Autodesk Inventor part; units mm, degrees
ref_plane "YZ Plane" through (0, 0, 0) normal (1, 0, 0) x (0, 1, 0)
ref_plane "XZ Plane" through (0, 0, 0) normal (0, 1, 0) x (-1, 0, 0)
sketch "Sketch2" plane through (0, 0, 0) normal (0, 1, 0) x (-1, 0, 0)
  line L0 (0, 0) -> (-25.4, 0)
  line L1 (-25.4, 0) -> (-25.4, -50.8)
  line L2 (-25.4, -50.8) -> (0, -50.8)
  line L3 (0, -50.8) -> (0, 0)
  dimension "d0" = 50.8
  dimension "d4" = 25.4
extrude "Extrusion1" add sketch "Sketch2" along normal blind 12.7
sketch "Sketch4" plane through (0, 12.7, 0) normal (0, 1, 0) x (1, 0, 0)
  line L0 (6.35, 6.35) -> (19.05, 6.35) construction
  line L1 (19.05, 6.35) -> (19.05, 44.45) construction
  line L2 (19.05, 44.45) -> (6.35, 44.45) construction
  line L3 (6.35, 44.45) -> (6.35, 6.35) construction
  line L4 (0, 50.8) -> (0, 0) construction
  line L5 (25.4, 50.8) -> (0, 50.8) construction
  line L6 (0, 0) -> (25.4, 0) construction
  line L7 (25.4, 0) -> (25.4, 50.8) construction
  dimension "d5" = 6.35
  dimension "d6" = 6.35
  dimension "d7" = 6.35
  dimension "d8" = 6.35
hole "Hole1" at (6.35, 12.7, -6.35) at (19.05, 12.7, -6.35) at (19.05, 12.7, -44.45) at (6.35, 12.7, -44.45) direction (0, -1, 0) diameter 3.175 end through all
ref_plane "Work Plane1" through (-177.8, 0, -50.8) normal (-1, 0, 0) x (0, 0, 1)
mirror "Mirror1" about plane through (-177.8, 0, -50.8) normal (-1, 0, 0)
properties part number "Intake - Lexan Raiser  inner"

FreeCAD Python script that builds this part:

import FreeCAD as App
import Part
import Sketcher

V = App.Vector
Q = App.Units.Quantity


def add_polygon(sketch, points):
    """Adds a closed chain of lines whose ends are joined by coincident constraints."""
    first, n = sketch.GeometryCount, len(points)
    for a, b in zip(points, points[1:] + points[:1]):
        sketch.addGeometry(Part.LineSegment(App.Vector(*a, 0), App.Vector(*b, 0)), False)
    for i in range(n):
        sketch.addConstraint(Sketcher.Constraint("Coincident", first + i, 2, first + (i + 1) % n, 1))

doc = App.newDocument("Part")
params = doc.addObject("Spreadsheet::Sheet", "Params")
for row, (alias, value) in enumerate([
    ("sketch1_width", "1 in"),
    ("sketch1_height", "2 in"),
    ("pad1_length", "0.5 in"),
    ("sketch2_diameter", "0.125 in"),
    ("hole_diameter", "0.125 in"),
], start=1):
    params.set(f"A{row}", alias)
    params.set(f"B{row}", "=" + value)
    params.setAlias(f"B{row}", alias)

body = doc.addObject("PartDesign::Body", "Body")
body.AllowCompound = True

# Sketch on XZ plane
sketch1 = doc.addObject("Sketcher::SketchObject", "Sketch")
body.addObject(sketch1)
sketch1.AttachmentSupport = (doc.XZ_Plane, [""])
sketch1.MapMode = "FlatFace"
add_polygon(sketch1, [(0, -51), (0, 0), (25, 0), (25, -51)])  # lines 0-3
sketch1.addConstraint([
    Sketcher.Constraint("Vertical", 0),
    Sketcher.Constraint("Horizontal", 1),
    Sketcher.Constraint("Vertical", 2),
    Sketcher.Constraint("Horizontal", 3),
    Sketcher.Constraint("Coincident", 0, 2, -1, 1),
    Sketcher.Constraint("DistanceX", 1, 1, 1, 2, Q("1 in")),
    Sketcher.Constraint("DistanceY", 0, 1, 0, 2, Q("2 in")),
])
sketch1.setExpression("Constraints[9]", "Params.sketch1_width")
sketch1.setExpression("Constraints[10]", "Params.sketch1_height")
pad1 = doc.addObject("PartDesign::Pad", "Pad")
body.addObject(pad1)
pad1.Profile = sketch1
pad1.setExpression("Length", "Params.pad1_length")
pad1.Reversed = True

# Sketch on XZ plane
sketch2 = doc.addObject("Sketcher::SketchObject", "Sketch001")
body.addObject(sketch2)
sketch2.AttachmentSupport = (doc.XZ_Plane, [""])
sketch2.MapMode = "FlatFace"
sketch2.AttachmentOffset = App.Placement(V(0, 0, -0.5 * 25.4), App.Rotation())
sketch2.addGeometry([
    Part.Circle(V(6.3, -6.3, 0), V(0, 0, 1), 1.6),
    Part.Circle(V(19.1, -6.3, 0), V(0, 0, 1), 1.6),
    Part.Circle(V(19.1, -44.5, 0), V(0, 0, 1), 1.6),
    Part.Circle(V(6.3, -44.5, 0), V(0, 0, 1), 1.6),
], False)
sketch2.addConstraint([
    Sketcher.Constraint("Equal", 0, 1),
    Sketcher.Constraint("Equal", 1, 2),
    Sketcher.Constraint("Equal", 2, 3),
    Sketcher.Constraint("Horizontal", 0, 3, 1, 3),
    Sketcher.Constraint("Horizontal", 2, 3, 3, 3),
    Sketcher.Constraint("Vertical", 1, 3, 2, 3),
    Sketcher.Constraint("Vertical", 0, 3, 3, 3),
    Sketcher.Constraint("Diameter", 0, Q("0.125 in")),
    Sketcher.Constraint("DistanceX", 0, 3, 1, 3, Q("0.5 in")),
    Sketcher.Constraint("DistanceY", 2, 3, 1, 3, Q("1.5 in")),
    Sketcher.Constraint("DistanceX", -1, 1, 0, 3, Q("0.25 in")),
    Sketcher.Constraint("DistanceY", 0, 3, -1, 1, Q("0.25 in")),
])
sketch2.setExpression("Constraints[7]", "Params.sketch2_diameter")
doc.recompute()
hole = doc.addObject("PartDesign::Hole", "Hole")
body.addObject(hole)
hole.Profile = sketch2
hole.ThreadType = "None"
hole.setExpression("Diameter", "Params.hole_diameter")
hole.DepthType = "ThroughAll"
hole.Reversed = True
doc.recompute()

datumplane = doc.addObject("PartDesign::Plane", "DatumPlane")
body.addObject(datumplane)
datumplane.AttachmentSupport = (doc.YZ_Plane, [""])
datumplane.MapMode = "FlatFace"
datumplane.AttachmentOffset = App.Placement(V(0, 0, -7 * 25.4), App.Rotation())
mirrored = doc.addObject("PartDesign::Mirrored", "Mirrored")
body.addObject(mirrored)
mirrored.TransformMode = "Transform body"
mirrored.MirrorPlane = (datumplane, [""])
body.Tip = mirrored

doc.recompute()
